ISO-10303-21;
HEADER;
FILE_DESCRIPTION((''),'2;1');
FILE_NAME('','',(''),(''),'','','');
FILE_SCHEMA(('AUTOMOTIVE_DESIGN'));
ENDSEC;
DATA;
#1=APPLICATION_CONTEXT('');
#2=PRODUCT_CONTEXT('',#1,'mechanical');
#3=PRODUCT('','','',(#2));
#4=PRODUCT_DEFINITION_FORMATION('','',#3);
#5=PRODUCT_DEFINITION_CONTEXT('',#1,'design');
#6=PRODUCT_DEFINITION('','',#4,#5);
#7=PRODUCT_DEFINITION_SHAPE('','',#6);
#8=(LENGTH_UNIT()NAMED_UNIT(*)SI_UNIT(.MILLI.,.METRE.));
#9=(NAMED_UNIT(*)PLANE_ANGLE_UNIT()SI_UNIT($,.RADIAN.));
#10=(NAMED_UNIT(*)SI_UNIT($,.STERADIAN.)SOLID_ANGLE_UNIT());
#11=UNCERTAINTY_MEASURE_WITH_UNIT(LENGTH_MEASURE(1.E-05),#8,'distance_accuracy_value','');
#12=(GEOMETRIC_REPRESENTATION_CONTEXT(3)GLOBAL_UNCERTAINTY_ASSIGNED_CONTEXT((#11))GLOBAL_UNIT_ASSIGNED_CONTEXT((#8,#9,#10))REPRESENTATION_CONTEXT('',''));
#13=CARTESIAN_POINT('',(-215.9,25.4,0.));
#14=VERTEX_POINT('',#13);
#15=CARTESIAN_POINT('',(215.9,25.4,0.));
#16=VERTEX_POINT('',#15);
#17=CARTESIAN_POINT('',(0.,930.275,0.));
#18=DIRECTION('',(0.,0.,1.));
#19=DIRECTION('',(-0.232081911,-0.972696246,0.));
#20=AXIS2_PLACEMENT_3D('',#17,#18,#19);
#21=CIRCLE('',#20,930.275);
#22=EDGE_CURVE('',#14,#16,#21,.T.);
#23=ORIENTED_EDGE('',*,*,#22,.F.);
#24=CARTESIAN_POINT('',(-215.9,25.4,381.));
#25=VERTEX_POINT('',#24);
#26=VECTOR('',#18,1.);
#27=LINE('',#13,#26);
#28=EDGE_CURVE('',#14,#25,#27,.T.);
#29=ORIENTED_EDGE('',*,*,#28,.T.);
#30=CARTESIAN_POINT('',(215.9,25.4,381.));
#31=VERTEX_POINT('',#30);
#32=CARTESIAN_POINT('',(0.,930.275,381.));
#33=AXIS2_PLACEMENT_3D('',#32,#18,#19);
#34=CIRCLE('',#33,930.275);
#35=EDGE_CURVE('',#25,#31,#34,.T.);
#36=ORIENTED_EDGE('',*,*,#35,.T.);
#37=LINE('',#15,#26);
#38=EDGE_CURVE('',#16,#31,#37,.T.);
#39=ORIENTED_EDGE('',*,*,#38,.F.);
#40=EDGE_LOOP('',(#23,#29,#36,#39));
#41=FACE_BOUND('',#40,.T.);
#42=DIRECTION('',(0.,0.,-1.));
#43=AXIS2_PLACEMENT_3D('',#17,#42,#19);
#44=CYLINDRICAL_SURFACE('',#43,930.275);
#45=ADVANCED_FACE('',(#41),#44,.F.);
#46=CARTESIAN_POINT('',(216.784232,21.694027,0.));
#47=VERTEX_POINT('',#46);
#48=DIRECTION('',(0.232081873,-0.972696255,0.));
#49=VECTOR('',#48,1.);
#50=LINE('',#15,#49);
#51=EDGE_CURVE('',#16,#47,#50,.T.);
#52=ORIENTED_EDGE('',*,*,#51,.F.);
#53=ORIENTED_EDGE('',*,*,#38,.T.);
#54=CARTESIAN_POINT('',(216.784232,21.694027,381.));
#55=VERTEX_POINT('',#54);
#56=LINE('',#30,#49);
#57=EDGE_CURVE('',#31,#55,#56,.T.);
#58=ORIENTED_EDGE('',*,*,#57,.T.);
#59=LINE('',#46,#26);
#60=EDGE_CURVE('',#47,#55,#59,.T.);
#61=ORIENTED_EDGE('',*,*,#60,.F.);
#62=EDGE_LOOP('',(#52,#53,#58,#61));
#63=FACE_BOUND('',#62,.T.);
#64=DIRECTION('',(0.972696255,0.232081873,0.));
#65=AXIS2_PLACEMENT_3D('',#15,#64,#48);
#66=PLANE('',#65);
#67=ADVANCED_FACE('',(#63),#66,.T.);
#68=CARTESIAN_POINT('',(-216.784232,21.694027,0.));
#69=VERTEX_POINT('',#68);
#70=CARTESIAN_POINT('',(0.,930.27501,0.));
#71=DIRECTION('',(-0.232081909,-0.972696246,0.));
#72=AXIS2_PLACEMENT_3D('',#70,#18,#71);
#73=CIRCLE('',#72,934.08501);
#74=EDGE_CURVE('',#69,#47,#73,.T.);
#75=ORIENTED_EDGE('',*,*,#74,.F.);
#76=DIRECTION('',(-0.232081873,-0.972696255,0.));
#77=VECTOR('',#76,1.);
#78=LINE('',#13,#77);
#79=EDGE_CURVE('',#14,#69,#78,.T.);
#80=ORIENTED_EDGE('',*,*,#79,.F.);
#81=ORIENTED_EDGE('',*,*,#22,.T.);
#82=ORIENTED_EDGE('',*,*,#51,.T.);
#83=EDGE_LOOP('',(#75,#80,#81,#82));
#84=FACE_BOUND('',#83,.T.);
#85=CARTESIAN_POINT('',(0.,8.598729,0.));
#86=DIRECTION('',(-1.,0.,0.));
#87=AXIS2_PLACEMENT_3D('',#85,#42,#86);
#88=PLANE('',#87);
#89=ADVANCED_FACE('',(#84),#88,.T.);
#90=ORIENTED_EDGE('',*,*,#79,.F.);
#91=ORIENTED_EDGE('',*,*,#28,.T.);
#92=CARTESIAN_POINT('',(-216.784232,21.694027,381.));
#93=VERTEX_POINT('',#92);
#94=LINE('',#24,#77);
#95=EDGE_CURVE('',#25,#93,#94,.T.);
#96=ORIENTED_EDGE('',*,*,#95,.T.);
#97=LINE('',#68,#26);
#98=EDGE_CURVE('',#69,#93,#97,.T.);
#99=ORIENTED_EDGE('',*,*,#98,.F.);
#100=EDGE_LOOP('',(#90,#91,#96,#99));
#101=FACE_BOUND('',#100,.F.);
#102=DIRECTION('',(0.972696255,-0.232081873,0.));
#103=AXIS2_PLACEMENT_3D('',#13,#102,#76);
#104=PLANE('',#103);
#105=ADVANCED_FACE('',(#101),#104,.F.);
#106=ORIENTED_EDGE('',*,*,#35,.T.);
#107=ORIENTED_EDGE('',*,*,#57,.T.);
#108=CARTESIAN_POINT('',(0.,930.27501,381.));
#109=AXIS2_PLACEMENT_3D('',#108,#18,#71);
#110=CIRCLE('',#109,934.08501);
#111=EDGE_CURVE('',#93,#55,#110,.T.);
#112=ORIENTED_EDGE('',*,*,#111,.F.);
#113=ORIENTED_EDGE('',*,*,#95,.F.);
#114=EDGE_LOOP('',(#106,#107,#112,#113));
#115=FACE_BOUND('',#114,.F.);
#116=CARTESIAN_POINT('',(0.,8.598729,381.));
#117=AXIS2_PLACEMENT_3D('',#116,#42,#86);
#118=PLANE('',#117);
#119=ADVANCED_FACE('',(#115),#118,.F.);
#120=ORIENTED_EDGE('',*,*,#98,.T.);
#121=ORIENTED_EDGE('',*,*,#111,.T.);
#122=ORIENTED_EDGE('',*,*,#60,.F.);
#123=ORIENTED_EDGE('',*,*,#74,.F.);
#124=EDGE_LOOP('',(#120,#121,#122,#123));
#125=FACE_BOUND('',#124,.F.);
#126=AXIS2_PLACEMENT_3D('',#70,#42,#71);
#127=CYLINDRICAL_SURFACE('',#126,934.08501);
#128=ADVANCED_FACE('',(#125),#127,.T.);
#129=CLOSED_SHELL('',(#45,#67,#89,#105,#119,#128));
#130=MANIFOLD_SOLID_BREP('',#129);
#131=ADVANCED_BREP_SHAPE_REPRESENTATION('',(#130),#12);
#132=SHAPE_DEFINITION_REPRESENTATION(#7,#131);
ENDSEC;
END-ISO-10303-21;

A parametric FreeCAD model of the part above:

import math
import FreeCAD as App
import Part
import Sketcher

V = App.Vector
Q = App.Units.Quantity

doc = App.newDocument("Part")
params = doc.addObject("Spreadsheet::Sheet", "Params")
for row, (alias, value) in enumerate([
    ("sketch1_radius", "36.625 in"),
    ("sketch1_length", "0.15 in"),
    ("pad1_length", "15 in"),
], start=1):
    params.set(f"A{row}", alias)
    params.set(f"B{row}", "=" + value)
    params.setAlias(f"B{row}", alias)

body = doc.addObject("PartDesign::Body", "Body")

# Sketch on XY plane
sketch1 = body.newObject("Sketcher::SketchObject", "Sketch")
sketch1.AttachmentSupport = (doc.getObject("XY_Plane"), [""])
sketch1.MapMode = "FlatFace"
sketch1.addGeometry(Part.ArcOfCircle(Part.Circle(V(0, 930.3, 0), V(0, 0, 1), 930.3), math.radians(-103), math.radians(-77)), False)
sketch1.addGeometry(Part.LineSegment(V(-215.9, 25.4, 0), V(-216.8, 21.7, 0)), False)
sketch1.addGeometry(Part.ArcOfCircle(Part.Circle(V(0, 930.3, 0), V(0, 0, 1), 934.1), math.radians(-103), math.radians(-77)), False)
sketch1.addGeometry(Part.LineSegment(V(216.8, 21.7, 0), V(215.9, 25.4, 0)), False)
sketch1.addConstraint(Sketcher.Constraint("Coincident", 0, 1, 1, 1))
sketch1.addConstraint(Sketcher.Constraint("Coincident", 1, 2, 2, 1))
sketch1.addConstraint(Sketcher.Constraint("Coincident", 2, 2, 3, 1))
sketch1.addConstraint(Sketcher.Constraint("Coincident", 3, 2, 0, 2))
sketch1.addConstraint(Sketcher.Constraint("PointOnObject", 0, 3, -2))
sketch1.addConstraint(Sketcher.Constraint("PointOnObject", 2, 3, -2))
sketch1.addConstraint(Sketcher.Constraint("DistanceY", -1, 1, 0, 1, Q("1 in")))
sketch1.addConstraint(Sketcher.Constraint("DistanceY", -1, 1, 3, 2, Q("1 in")))
sketch1.addConstraint(Sketcher.Constraint("Radius", 0, Q("36.625 in")))
sketch1.addConstraint(Sketcher.Constraint("DistanceX", -1, 1, 3, 2, Q("8.5 in")))
sketch1.addConstraint(Sketcher.Constraint("Distance", 1, Q("0.15 in")))
sketch1.addConstraint(Sketcher.Constraint("Radius", 2, Q("934.08501 mm")))
sketch1.addConstraint(Sketcher.Constraint("DistanceX", 1, 2, -1, 1, Q("216.784232 mm")))
sketch1.addConstraint(Sketcher.Constraint("Angle", 3, Q("103.419671 deg")))
sketch1.setExpression("Constraints[8]", "Params.sketch1_radius")
sketch1.setExpression("Constraints[10]", "Params.sketch1_length")
pad1 = body.newObject("PartDesign::Pad", "Pad")
pad1.Profile = sketch1
pad1.setExpression("Length", "Params.pad1_length")

doc.recompute()
